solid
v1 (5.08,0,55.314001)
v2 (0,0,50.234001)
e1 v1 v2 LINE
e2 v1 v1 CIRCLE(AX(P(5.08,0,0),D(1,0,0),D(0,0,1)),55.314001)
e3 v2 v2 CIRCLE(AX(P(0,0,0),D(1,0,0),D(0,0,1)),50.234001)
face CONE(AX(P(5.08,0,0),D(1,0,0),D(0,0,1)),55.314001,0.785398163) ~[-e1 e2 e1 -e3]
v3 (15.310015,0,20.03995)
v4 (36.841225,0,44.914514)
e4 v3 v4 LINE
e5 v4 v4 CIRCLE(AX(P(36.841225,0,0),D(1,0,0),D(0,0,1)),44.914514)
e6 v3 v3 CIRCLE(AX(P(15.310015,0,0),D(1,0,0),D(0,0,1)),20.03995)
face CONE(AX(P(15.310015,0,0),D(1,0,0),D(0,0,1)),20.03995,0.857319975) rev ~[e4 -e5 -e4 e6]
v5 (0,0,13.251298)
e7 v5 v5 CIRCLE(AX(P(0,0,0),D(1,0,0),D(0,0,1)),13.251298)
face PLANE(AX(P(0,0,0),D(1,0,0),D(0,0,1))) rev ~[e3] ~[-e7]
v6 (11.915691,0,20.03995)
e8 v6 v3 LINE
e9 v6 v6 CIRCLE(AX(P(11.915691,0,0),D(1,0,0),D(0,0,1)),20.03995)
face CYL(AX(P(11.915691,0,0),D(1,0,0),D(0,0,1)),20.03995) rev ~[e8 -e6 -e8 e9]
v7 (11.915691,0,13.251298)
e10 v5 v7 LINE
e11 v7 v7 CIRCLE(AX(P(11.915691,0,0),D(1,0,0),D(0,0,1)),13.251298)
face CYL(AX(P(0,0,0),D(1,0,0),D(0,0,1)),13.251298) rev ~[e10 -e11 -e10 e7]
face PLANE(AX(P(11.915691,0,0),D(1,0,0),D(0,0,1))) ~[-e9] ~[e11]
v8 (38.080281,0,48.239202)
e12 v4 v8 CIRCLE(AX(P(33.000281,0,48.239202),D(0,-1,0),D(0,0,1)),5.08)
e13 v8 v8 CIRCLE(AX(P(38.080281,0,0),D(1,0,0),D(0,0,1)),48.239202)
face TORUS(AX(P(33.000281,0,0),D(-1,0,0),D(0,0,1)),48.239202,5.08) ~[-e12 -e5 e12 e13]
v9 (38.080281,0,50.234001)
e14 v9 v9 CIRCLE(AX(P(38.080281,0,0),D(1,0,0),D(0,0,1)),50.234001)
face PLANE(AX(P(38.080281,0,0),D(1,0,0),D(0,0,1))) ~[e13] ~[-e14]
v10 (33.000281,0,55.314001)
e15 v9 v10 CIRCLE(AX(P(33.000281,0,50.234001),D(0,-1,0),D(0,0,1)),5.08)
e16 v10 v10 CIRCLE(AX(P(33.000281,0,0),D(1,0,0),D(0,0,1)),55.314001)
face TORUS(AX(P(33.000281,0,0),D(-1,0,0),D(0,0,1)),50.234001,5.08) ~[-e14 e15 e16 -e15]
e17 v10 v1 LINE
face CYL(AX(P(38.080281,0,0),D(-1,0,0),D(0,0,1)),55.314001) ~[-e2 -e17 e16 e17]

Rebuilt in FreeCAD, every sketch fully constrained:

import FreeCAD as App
import Part
import Sketcher
from FreeCAD import Vector
Q = App.Units.Quantity


def edges_at(feature, points):
    """Names of the edges that pass closest to the given points."""
    edges = feature.Shape.Edges
    near = lambda p: min(range(len(edges)), key=lambda i: edges[i].distToShape(Part.Vertex(*p))[0])
    return sorted({f"Edge{near(p) + 1}" for p in points})


def add_polygon(sketch, points):
    """Adds a closed chain of lines whose ends are joined by coincident constraints."""
    first, n = sketch.GeometryCount, len(points)
    for a, b in zip(points, points[1:] + points[:1]):
        sketch.addGeometry(Part.LineSegment(App.Vector(*a, 0), App.Vector(*b, 0)), False)
    for i in range(n):
        sketch.addConstraint(Sketcher.Constraint("Coincident", first + i, 2, first + (i + 1) % n, 1))

doc = App.newDocument("Part")
body = doc.addObject("PartDesign::Body", "Body")

# Sketch on XZ plane
sketch1 = body.newObject("Sketcher::SketchObject", "Sketch")
sketch1.AttachmentSupport = (doc.getObject("XZ_Plane"), [""])
sketch1.MapMode = "FlatFace"
add_polygon(sketch1, [(0, 55.3), (0, 13.3), (11.9, 13.3), (11.9, 20), (15.3, 20), (38.1, 46.3), (38.1, 55.3)])  # lines 0-6
sketch1.addConstraint([
    Sketcher.Constraint("Vertical", 0),
    Sketcher.Constraint("Horizontal", 1),
    Sketcher.Constraint("Vertical", 2),
    Sketcher.Constraint("Horizontal", 3),
    Sketcher.Constraint("Vertical", 5),
    Sketcher.Constraint("Horizontal", 6),
    Sketcher.Constraint("PointOnObject", 0, 2, -2),
    Sketcher.Constraint("DistanceX", 1, 1, 1, 2, Q("11.915691 mm")),
    Sketcher.Constraint("DistanceX", 6, 2, 6, 1, Q("38.080281 mm")),
    Sketcher.Constraint("DistanceY", 5, 1, 5, 2, Q("8.968031 mm")),
    Sketcher.Constraint("DistanceY", -1, 1, 5, 2, Q("55.314001 mm")),
    Sketcher.Constraint("Distance", 4, Q("34.792121 mm")),
    Sketcher.Constraint("DistanceX", 3, 1, 3, 2, Q("3.394324 mm")),
    Sketcher.Constraint("DistanceY", 0, 2, 0, 1, Q("42.062703 mm")),
])
revolution = body.newObject("PartDesign::Revolution", "Revolution")
revolution.Profile = sketch1
revolution.ReferenceAxis = (sketch1, ["H_Axis"])
revolution.Angle = 360
doc.recompute()

fillet = body.newObject("PartDesign::Fillet", "Fillet")
fillet.Base = (revolution, edges_at(revolution, [(38.08, 0, -46.346), (38.08, 0, -55.314)]))
fillet.Radius = Q("0.2 in")
doc.recompute()

chamfer = body.newObject("PartDesign::Chamfer", "Chamfer")
chamfer.Base = (fillet, edges_at(fillet, [(0, 0, -55.314)]))
chamfer.Size = Q("0.2 in")

doc.recompute()
